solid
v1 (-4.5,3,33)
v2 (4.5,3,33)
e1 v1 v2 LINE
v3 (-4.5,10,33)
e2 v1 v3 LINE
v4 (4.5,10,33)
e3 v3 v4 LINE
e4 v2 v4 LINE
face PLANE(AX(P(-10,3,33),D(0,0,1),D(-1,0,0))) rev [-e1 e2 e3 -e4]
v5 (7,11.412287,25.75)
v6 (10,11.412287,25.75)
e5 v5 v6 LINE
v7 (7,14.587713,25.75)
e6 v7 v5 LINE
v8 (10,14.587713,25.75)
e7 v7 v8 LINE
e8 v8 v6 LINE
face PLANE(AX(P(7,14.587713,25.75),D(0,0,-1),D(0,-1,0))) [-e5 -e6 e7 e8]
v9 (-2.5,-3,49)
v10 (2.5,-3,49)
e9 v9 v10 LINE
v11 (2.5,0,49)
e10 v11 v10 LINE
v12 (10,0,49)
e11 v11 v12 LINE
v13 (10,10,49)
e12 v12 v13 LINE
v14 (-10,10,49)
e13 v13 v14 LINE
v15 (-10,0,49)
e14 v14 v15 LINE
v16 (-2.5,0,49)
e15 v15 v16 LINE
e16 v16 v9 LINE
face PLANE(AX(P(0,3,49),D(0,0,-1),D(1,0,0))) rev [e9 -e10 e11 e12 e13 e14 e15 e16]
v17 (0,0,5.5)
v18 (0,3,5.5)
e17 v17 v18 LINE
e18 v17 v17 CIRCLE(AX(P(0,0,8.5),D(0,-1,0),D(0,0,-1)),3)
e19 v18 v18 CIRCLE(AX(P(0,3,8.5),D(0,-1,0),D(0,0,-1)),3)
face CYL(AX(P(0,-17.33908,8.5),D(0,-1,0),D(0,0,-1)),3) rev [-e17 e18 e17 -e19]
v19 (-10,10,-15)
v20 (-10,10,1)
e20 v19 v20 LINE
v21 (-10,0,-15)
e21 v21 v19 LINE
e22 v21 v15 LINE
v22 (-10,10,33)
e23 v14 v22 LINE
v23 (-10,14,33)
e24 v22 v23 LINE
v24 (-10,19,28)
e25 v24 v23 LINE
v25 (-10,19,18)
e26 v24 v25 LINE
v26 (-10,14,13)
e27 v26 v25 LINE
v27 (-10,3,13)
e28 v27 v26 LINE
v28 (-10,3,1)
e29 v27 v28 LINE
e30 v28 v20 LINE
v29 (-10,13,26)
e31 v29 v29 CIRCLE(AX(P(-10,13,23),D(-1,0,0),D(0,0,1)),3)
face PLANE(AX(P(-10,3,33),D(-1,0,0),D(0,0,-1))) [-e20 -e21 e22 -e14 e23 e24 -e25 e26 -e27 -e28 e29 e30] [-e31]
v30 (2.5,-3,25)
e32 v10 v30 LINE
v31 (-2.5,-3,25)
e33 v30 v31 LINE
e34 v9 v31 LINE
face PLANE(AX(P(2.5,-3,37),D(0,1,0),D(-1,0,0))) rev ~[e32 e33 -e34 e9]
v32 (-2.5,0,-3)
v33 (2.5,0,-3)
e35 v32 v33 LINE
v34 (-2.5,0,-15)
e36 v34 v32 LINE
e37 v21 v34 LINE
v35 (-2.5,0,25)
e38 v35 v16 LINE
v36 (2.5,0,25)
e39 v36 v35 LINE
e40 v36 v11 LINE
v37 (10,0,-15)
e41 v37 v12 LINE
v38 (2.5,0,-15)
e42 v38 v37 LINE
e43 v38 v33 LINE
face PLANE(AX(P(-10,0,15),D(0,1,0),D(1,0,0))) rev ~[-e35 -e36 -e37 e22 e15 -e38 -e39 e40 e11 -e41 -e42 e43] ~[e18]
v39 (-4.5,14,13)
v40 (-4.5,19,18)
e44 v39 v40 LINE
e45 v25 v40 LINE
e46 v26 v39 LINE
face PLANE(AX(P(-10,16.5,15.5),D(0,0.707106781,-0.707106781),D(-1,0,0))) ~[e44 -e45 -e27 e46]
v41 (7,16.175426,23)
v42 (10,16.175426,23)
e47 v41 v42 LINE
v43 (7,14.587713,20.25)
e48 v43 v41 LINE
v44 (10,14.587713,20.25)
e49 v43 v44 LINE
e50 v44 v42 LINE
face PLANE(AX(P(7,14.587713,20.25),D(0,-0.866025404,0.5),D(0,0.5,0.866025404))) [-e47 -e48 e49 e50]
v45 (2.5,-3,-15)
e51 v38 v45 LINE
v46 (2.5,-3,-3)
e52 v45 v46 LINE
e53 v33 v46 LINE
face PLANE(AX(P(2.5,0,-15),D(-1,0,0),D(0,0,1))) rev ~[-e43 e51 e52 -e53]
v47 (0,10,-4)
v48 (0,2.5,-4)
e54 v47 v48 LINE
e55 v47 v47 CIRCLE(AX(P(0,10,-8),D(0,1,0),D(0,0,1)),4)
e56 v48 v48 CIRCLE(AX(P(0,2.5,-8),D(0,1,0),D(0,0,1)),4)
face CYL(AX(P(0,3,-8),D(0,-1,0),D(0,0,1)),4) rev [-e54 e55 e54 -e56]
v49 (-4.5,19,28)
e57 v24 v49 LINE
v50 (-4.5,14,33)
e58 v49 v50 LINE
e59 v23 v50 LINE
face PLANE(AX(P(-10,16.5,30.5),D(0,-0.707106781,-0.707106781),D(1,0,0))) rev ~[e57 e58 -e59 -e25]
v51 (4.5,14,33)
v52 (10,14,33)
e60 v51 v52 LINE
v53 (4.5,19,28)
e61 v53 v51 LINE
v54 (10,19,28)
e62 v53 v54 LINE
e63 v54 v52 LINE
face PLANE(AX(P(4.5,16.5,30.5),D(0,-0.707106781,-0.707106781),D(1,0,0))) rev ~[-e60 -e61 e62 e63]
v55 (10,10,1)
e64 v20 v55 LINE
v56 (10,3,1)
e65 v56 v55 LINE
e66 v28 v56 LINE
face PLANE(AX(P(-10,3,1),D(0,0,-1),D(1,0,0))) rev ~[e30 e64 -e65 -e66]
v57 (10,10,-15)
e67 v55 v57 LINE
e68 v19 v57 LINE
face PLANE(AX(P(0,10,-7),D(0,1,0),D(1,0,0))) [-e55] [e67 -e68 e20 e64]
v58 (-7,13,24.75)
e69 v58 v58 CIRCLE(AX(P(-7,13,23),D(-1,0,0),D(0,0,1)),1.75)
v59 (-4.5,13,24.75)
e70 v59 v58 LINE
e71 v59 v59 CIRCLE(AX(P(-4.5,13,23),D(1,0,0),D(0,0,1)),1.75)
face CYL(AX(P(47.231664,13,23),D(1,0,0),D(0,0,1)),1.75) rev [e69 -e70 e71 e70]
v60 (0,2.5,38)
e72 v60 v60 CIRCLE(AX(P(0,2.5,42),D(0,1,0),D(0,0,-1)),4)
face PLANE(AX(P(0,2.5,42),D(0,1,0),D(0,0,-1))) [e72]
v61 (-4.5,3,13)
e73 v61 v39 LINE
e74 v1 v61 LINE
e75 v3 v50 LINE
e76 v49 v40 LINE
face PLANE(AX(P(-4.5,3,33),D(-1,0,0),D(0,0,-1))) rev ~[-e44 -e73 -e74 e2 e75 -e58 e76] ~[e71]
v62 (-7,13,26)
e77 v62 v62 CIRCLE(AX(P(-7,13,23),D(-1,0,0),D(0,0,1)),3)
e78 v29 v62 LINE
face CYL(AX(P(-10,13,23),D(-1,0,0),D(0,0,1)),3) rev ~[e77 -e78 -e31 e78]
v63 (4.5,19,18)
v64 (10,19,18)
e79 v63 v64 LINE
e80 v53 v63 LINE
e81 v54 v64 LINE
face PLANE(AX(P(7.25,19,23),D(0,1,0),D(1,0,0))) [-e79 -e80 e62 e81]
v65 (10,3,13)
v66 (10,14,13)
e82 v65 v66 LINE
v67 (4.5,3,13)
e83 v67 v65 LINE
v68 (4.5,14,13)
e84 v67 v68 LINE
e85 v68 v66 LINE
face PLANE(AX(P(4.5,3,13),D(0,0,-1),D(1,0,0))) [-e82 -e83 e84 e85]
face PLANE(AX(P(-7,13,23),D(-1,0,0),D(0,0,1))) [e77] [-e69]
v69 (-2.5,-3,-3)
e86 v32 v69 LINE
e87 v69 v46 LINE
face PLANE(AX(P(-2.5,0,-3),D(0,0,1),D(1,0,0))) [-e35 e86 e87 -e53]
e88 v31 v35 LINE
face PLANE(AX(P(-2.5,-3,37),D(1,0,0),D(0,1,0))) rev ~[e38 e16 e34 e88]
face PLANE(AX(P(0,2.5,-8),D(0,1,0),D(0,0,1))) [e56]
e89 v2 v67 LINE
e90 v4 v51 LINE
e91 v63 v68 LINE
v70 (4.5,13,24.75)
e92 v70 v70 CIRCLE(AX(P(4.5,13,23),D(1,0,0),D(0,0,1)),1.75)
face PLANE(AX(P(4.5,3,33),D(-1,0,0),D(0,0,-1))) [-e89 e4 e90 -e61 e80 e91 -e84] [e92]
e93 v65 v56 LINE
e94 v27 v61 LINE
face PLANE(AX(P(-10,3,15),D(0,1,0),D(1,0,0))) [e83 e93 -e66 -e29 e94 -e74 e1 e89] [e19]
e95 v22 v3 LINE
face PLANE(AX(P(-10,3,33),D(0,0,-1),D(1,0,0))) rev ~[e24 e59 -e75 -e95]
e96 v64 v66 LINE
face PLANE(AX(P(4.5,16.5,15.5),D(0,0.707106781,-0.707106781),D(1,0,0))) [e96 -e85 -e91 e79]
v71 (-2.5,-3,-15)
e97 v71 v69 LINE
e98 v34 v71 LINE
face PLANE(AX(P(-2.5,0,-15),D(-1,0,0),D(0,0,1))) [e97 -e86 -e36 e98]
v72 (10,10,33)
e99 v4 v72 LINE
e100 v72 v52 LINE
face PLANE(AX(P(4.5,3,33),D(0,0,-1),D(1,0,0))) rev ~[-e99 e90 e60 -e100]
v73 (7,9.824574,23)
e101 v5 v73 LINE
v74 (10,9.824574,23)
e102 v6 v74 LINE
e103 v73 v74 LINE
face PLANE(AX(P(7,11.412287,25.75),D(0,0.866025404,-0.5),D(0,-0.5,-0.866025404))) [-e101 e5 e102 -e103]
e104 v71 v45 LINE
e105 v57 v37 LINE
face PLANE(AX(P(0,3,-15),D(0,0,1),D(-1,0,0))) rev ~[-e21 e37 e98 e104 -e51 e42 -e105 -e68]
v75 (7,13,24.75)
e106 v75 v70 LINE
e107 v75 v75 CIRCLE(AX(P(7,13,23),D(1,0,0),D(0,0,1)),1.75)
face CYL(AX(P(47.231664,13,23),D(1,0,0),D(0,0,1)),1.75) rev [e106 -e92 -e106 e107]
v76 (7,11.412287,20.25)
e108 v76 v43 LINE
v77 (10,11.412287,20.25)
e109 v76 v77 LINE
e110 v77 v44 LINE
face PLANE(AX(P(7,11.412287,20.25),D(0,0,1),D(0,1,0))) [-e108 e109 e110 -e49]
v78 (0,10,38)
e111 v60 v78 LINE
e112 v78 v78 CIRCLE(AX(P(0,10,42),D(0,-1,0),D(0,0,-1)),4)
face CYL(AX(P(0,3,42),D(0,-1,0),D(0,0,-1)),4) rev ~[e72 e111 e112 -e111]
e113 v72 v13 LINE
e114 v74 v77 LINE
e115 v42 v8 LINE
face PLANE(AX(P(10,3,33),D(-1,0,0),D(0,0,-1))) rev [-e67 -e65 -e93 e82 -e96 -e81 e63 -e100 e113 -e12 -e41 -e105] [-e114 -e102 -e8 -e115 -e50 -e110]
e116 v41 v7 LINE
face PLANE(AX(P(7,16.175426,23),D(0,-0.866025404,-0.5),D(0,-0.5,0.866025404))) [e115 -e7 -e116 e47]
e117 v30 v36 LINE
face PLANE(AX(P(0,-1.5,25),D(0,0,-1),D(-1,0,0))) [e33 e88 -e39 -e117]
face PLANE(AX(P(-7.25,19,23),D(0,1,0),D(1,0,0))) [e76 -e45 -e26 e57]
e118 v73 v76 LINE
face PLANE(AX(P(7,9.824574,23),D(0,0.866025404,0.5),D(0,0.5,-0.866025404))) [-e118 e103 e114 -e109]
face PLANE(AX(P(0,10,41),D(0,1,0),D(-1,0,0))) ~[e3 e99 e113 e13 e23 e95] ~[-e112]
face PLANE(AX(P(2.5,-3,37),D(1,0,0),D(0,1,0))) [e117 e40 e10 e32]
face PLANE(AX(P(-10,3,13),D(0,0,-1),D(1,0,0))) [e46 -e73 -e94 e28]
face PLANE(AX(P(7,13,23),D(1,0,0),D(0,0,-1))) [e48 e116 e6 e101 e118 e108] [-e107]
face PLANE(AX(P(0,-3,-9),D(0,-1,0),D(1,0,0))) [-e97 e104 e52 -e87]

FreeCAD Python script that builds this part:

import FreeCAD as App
import Part
import Sketcher

V = App.Vector
Q = App.Units.Quantity


def edges_at(feature, points):
    """Names of the edges that pass closest to the given points."""
    edges = feature.Shape.Edges
    near = lambda p: min(range(len(edges)), key=lambda i: edges[i].distToShape(Part.Vertex(*p))[0])
    return sorted({f"Edge{near(p) + 1}" for p in points})

doc = App.newDocument("Part")
body = doc.addObject("PartDesign::Body", "Body")

# Sketch on XZ plane
sketch1 = doc.addObject("Sketcher::SketchObject", "Sketch")
body.addObject(sketch1)
sketch1.AttachmentSupport = (doc.XZ_Plane, [""])
sketch1.MapMode = "FlatFace"
sketch1.addGeometry([
    Part.LineSegment(V(-10, -15, 0), V(-10, 15, 0)),
    Part.LineSegment(V(-10, 15, 0), V(10, 15, 0)),
    Part.LineSegment(V(10, 15, 0), V(10, -15, 0)),
    Part.LineSegment(V(10, -15, 0), V(-10, -15, 0)),
], False)
sketch1.addConstraint([
    Sketcher.Constraint("Coincident", 0, 2, 1, 1),
    Sketcher.Constraint("Coincident", 1, 2, 2, 1),
    Sketcher.Constraint("Coincident", 2, 2, 3, 1),
    Sketcher.Constraint("Coincident", 3, 2, 0, 1),
    Sketcher.Constraint("Vertical", 0),
    Sketcher.Constraint("Horizontal", 1),
    Sketcher.Constraint("Vertical", 2),
    Sketcher.Constraint("Horizontal", 3),
    Sketcher.Constraint("Symmetric", 0, 2, 2, 2, -1, 1),
    Sketcher.Constraint("DistanceX", 1, 1, 1, 2, Q("20 mm")),
    Sketcher.Constraint("DistanceY", 0, 1, 0, 2, Q("30 mm")),
])
pad1 = doc.addObject("PartDesign::Pad", "Pad")
body.addObject(pad1)
pad1.Profile = sketch1
pad1.Length = 3
pad1.Reversed = True

# Sketch on XZ plane
sketch2 = doc.addObject("Sketcher::SketchObject", "Sketch001")
body.addObject(sketch2)
sketch2.AttachmentSupport = (doc.XZ_Plane, [""])
sketch2.MapMode = "FlatFace"
sketch2.addGeometry([
    Part.LineSegment(V(-2, -3, 0), V(-2, -15, 0)),
    Part.LineSegment(V(-2, -15, 0), V(2, -15, 0)),
    Part.LineSegment(V(2, -15, 0), V(2, -3, 0)),
    Part.LineSegment(V(2, -3, 0), V(-2, -3, 0)),
], False)
sketch2.addConstraint([
    Sketcher.Constraint("Coincident", 0, 2, 1, 1),
    Sketcher.Constraint("Coincident", 1, 2, 2, 1),
    Sketcher.Constraint("Coincident", 2, 2, 3, 1),
    Sketcher.Constraint("Coincident", 3, 2, 0, 1),
    Sketcher.Constraint("Vertical", 0),
    Sketcher.Constraint("Horizontal", 1),
    Sketcher.Constraint("Vertical", 2),
    Sketcher.Constraint("Horizontal", 3),
    Sketcher.Constraint("DistanceX", 1, 1, 1, 2, Q("5 mm")),
    Sketcher.Constraint("DistanceY", 0, 2, 0, 1, Q("12 mm")),
    Sketcher.Constraint("DistanceY", 0, 2, -1, 1, Q("15 mm")),
    Sketcher.Constraint("DistanceX", 0, 2, -1, 1, Q("2.5 mm")),
])
pad2 = doc.addObject("PartDesign::Pad", "Pad001")
body.addObject(pad2)
pad2.Profile = sketch2
pad2.Length = 3

# Sketch on XZ plane
sketch3 = doc.addObject("Sketcher::SketchObject", "Sketch002")
body.addObject(sketch3)
sketch3.AttachmentSupport = (doc.XZ_Plane, [""])
sketch3.MapMode = "FlatFace"
sketch3.AttachmentOffset = App.Placement(V(0, 0, -3), App.Rotation())
sketch3.addGeometry([
    Part.Circle(V(0, -8, 0), V(0, 0, 1), 7),
    Part.Circle(V(0, -8, 0), V(0, 0, 1), 4),
], False)
sketch3.addConstraint([
    Sketcher.Constraint("Coincident", 1, 3, 0, 3),
    Sketcher.Constraint("PointOnObject", 0, 3, -2),
    Sketcher.Constraint("Diameter", 0, Q("14 mm")),
    Sketcher.Constraint("Diameter", 1, Q("8 mm")),
    Sketcher.Constraint("DistanceY", 0, 3, -1, 1, Q("8 mm")),
])
pad3 = doc.addObject("PartDesign::Pad", "Pad002")
body.addObject(pad3)
pad3.Profile = sketch3
pad3.Length = 7
pad3.Reversed = True

# Sketch on XZ plane
sketch4 = doc.addObject("Sketcher::SketchObject", "Sketch003")
body.addObject(sketch4)
sketch4.AttachmentSupport = (doc.XZ_Plane, [""])
sketch4.MapMode = "FlatFace"
sketch4.AttachmentOffset = App.Placement(V(0, 0, -3), App.Rotation())
sketch4.addGeometry(Part.Circle(V(0, -8, 0), V(0, 0, 1), 4), False)
sketch4.addConstraint([
    Sketcher.Constraint("PointOnObject", 0, 3, -2),
    Sketcher.Constraint("Diameter", 0, Q("8 mm")),
    Sketcher.Constraint("DistanceY", 0, 3, -1, 1, Q("8 mm")),
])
pad4 = doc.addObject("PartDesign::Pad", "Pad003")
body.addObject(pad4)
pad4.Profile = sketch4
pad4.Length = 1
pad4.Reversed = True

# Sketch on XZ plane
sketch5 = doc.addObject("Sketcher::SketchObject", "Sketch004")
body.addObject(sketch5)
sketch5.AttachmentSupport = (doc.XZ_Plane, [""])
sketch5.MapMode = "FlatFace"
sketch5.AttachmentOffset = App.Placement(V(0, 0, -3), App.Rotation())
sketch5.addGeometry(Part.Circle(V(0, 8.5, 0), V(0, 0, 1), 3), False)
sketch5.addConstraint([
    Sketcher.Constraint("PointOnObject", 0, 3, -2),
    Sketcher.Constraint("Diameter", 0, Q("6 mm")),
    Sketcher.Constraint("DistanceY", -1, 1, 0, 3, Q("8.5 mm")),
])
pocket1 = doc.addObject("PartDesign::Pocket", "Pocket")
body.addObject(pocket1)
pocket1.Profile = sketch5
pocket1.Type = "ThroughAll"
pocket1.Midplane = True

# Sketch on XZ plane
sketch6 = doc.addObject("Sketcher::SketchObject", "Sketch005")
body.addObject(sketch6)
sketch6.AttachmentSupport = (doc.XZ_Plane, [""])
sketch6.MapMode = "FlatFace"
sketch6.AttachmentOffset = App.Placement(V(0, 0, -3), App.Rotation())
sketch6.addGeometry([
    Part.LineSegment(V(10, -15, 0), V(-10, -15, 0)),  # 0
    Part.LineSegment(V(-10, -15, 0), V(-10, 1, 0)),  # 1
    Part.LineSegment(V(-10, 1, 0), V(10, 1, 0)),  # 2
    Part.LineSegment(V(10, 1, 0), V(10, -15, 0)),  # 3
    Part.Circle(V(0, -8, 0), V(0, 0, 1), 4),  # 4
], False)
sketch6.addConstraint([
    Sketcher.Constraint("Coincident", 0, 2, 1, 1),
    Sketcher.Constraint("Coincident", 1, 2, 2, 1),
    Sketcher.Constraint("Coincident", 2, 2, 3, 1),
    Sketcher.Constraint("Coincident", 3, 2, 0, 1),
    Sketcher.Constraint("Horizontal", 0),
    Sketcher.Constraint("Vertical", 1),
    Sketcher.Constraint("Horizontal", 2),
    Sketcher.Constraint("Vertical", 3),
    Sketcher.Constraint("PointOnObject", 4, 3, -2),
    Sketcher.Constraint("Diameter", 4, Q("8 mm")),
    Sketcher.Constraint("DistanceX", 0, 2, 0, 1, Q("20 mm")),
    Sketcher.Constraint("DistanceY", 1, 1, 1, 2, Q("16 mm")),
    Sketcher.Constraint("DistanceY", 4, 3, -1, 1, Q("8 mm")),
    Sketcher.Constraint("DistanceX", 0, 2, -1, 1, Q("10 mm")),
    Sketcher.Constraint("DistanceY", 0, 2, -1, 1, Q("15 mm")),
])
pad5 = doc.addObject("PartDesign::Pad", "Pad004")
body.addObject(pad5)
pad5.Profile = sketch6
pad5.Length = 7
pad5.Reversed = True

# Sketch on XY plane
sketch7 = doc.addObject("Sketcher::SketchObject", "Sketch006")
body.addObject(sketch7)
sketch7.AttachmentSupport = (doc.XY_Plane, [""])
sketch7.MapMode = "FlatFace"
sketch7.AttachmentOffset = App.Placement(V(0, 0, 15), App.Rotation())
sketch7.addGeometry([
    Part.LineSegment(V(-10, 3, 0), V(-10, 0, 0)),
    Part.LineSegment(V(-10, 0, 0), V(10, 0, 0)),
    Part.LineSegment(V(10, 0, 0), V(10, 3, 0)),
    Part.LineSegment(V(10, 3, 0), V(-10, 3, 0)),
], False)
sketch7.addConstraint([
    Sketcher.Constraint("Coincident", 0, 2, 1, 1),
    Sketcher.Constraint("Coincident", 1, 2, 2, 1),
    Sketcher.Constraint("Coincident", 2, 2, 3, 1),
    Sketcher.Constraint("Coincident", 3, 2, 0, 1),
    Sketcher.Constraint("Vertical", 0),
    Sketcher.Constraint("Horizontal", 1),
    Sketcher.Constraint("Vertical", 2),
    Sketcher.Constraint("Horizontal", 3),
    Sketcher.Constraint("Symmetric", 0, 2, 1, 2, -1, 1),
    Sketcher.Constraint("DistanceX", 1, 1, 1, 2, Q("20 mm")),
    Sketcher.Constraint("DistanceY", 0, 2, 0, 1, Q("3 mm")),
])
pad6 = doc.addObject("PartDesign::Pad", "Pad005")
body.addObject(pad6)
pad6.Profile = sketch7
pad6.Length = 19
doc.recompute()

datumplane = doc.addObject("PartDesign::Plane", "DatumPlane")
body.addObject(datumplane)
datumplane.AttachmentSupport = (doc.XY_Plane, [""])
datumplane.MapMode = "FlatFace"
datumplane.AttachmentOffset = App.Placement(V(0, 0, 17), App.Rotation())
mirrored = doc.addObject("PartDesign::Mirrored", "Mirrored")
body.addObject(mirrored)
mirrored.Originals = [pad1, pad2, pad3, pad4, pad5]
mirrored.MirrorPlane = (datumplane, [""])
body.Tip = mirrored

# Sketch on XY plane
sketch8 = doc.addObject("Sketcher::SketchObject", "Sketch007")
body.addObject(sketch8)
sketch8.AttachmentSupport = (doc.XY_Plane, [""])
sketch8.MapMode = "FlatFace"
sketch8.AttachmentOffset = App.Placement(V(0, 0, 37), App.Rotation())
sketch8.addGeometry([
    Part.LineSegment(V(2.5, 0, 0), V(2.5, -3, 0)),
    Part.LineSegment(V(2.5, -3, 0), V(-2.5, -3, 0)),
    Part.LineSegment(V(-2.5, -3, 0), V(-2.5, 0, 0)),
    Part.LineSegment(V(-2.5, 0, 0), V(2.5, 0, 0)),
], False)
sketch8.addConstraint([
    Sketcher.Constraint("Coincident", 0, 2, 1, 1),
    Sketcher.Constraint("Coincident", 1, 2, 2, 1),
    Sketcher.Constraint("Coincident", 2, 2, 3, 1),
    Sketcher.Constraint("Coincident", 3, 2, 0, 1),
    Sketcher.Constraint("Vertical", 0),
    Sketcher.Constraint("Horizontal", 1),
    Sketcher.Constraint("Vertical", 2),
    Sketcher.Constraint("Horizontal", 3),
    Sketcher.Constraint("Symmetric", 2, 2, 3, 2, -1, 1),
    Sketcher.Constraint("DistanceX", 1, 2, 1, 1, Q("5 mm")),
    Sketcher.Constraint("DistanceY", 0, 2, 0, 1, Q("3 mm")),
])
pad7 = doc.addObject("PartDesign::Pad", "Pad006")
body.addObject(pad7)
pad7.Profile = sketch8
pad7.Length = 12
pad7.Reversed = True

# Sketch on XZ plane
sketch9 = doc.addObject("Sketcher::SketchObject", "Sketch008")
body.addObject(sketch9)
sketch9.AttachmentSupport = (doc.XZ_Plane, [""])
sketch9.MapMode = "FlatFace"
sketch9.AttachmentOffset = App.Placement(V(0, 0, -3), App.Rotation())
sketch9.addGeometry([
    Part.LineSegment(V(-10, 13, 0), V(-10, 33, 0)),  # 0
    Part.LineSegment(V(-10, 33, 0), V(-4, 33, 0)),  # 1
    Part.LineSegment(V(-4, 33, 0), V(-4, 13, 0)),  # 2
    Part.LineSegment(V(-4, 13, 0), V(-10, 13, 0)),  # 3
    Part.LineSegment(V(4, 13, 0), V(4, 33, 0)),  # 4
    Part.LineSegment(V(4, 33, 0), V(10, 33, 0)),  # 5
    Part.LineSegment(V(10, 33, 0), V(10, 13, 0)),  # 6
    Part.LineSegment(V(10, 13, 0), V(4, 13, 0)),  # 7
], False)
sketch9.addConstraint([
    Sketcher.Constraint("Coincident", 0, 2, 1, 1),
    Sketcher.Constraint("Coincident", 1, 2, 2, 1),
    Sketcher.Constraint("Coincident", 2, 2, 3, 1),
    Sketcher.Constraint("Coincident", 3, 2, 0, 1),
    Sketcher.Constraint("Coincident", 4, 2, 5, 1),
    Sketcher.Constraint("Coincident", 5, 2, 6, 1),
    Sketcher.Constraint("Coincident", 6, 2, 7, 1),
    Sketcher.Constraint("Coincident", 7, 2, 4, 1),
    Sketcher.Constraint("Vertical", 0),
    Sketcher.Constraint("Horizontal", 1),
    Sketcher.Constraint("Vertical", 2),
    Sketcher.Constraint("Horizontal", 3),
    Sketcher.Constraint("Vertical", 4),
    Sketcher.Constraint("Horizontal", 5),
    Sketcher.Constraint("Vertical", 6),
    Sketcher.Constraint("Horizontal", 7),
    Sketcher.Constraint("Symmetric", 1, 2, 4, 2, -2),
    Sketcher.Constraint("Symmetric", 3, 2, 6, 2, -2),
    Sketcher.Constraint("DistanceY", 0, 1, 0, 2, Q("20 mm")),
    Sketcher.Constraint("DistanceX", 1, 1, 1, 2, Q("5.5 mm")),
    Sketcher.Constraint("DistanceX", 0, 2, -1, 1, Q("10 mm")),
    Sketcher.Constraint("DistanceY", -1, 1, 0, 2, Q("33 mm")),
])
pad8 = doc.addObject("PartDesign::Pad", "Pad007")
body.addObject(pad8)
pad8.Profile = sketch9
pad8.Length = 16
pad8.Reversed = True

# Sketch on YZ plane
sketch10 = doc.addObject("Sketcher::SketchObject", "Sketch009")
body.addObject(sketch10)
sketch10.AttachmentSupport = (doc.YZ_Plane, [""])
sketch10.MapMode = "FlatFace"
sketch10.AttachmentOffset = App.Placement(V(0, 0, -10), App.Rotation())
sketch10.addGeometry(Part.Circle(V(13, 23, 0), V(0, 0, 1), 1.8), False)
sketch10.addConstraint([
    Sketcher.Constraint("Diameter", 0, Q("3.5 mm")),
    Sketcher.Constraint("DistanceX", -1, 1, 0, 3, Q("13 mm")),
    Sketcher.Constraint("DistanceY", -1, 1, 0, 3, Q("23 mm")),
])
pocket2 = doc.addObject("PartDesign::Pocket", "Pocket001")
body.addObject(pocket2)
pocket2.Profile = sketch10
pocket2.Type = "ThroughAll"
pocket2.Midplane = True

# Sketch on YZ plane
sketch11 = doc.addObject("Sketcher::SketchObject", "Sketch010")
body.addObject(sketch11)
sketch11.AttachmentSupport = (doc.YZ_Plane, [""])
sketch11.MapMode = "FlatFace"
sketch11.AttachmentOffset = App.Placement(V(0, 0, -10), App.Rotation())
sketch11.addGeometry([
    Part.Circle(V(13, 23, 0), V(0, 0, 1), 3),
    Part.Circle(V(13, 23, 0), V(0, 0, 1), 1.8),
], False)
sketch11.addConstraint([
    Sketcher.Constraint("Coincident", 1, 3, 0, 3),
    Sketcher.Constraint("Diameter", 0, Q("6 mm")),
    Sketcher.Constraint("Diameter", 1, Q("3.5 mm")),
    Sketcher.Constraint("DistanceX", -1, 1, 0, 3, Q("13 mm")),
    Sketcher.Constraint("DistanceY", -1, 1, 0, 3, Q("23 mm")),
])
pocket3 = doc.addObject("PartDesign::Pocket", "Pocket002")
body.addObject(pocket3)
pocket3.Profile = sketch11
pocket3.Length = 3
pocket3.Reversed = True

# Sketch on YZ plane
sketch12 = doc.addObject("Sketcher::SketchObject", "Sketch011")
body.addObject(sketch12)
sketch12.AttachmentSupport = (doc.YZ_Plane, [""])
sketch12.MapMode = "FlatFace"
sketch12.AttachmentOffset = App.Placement(V(0, 0, 7), App.Rotation())
sketch12.addGeometry([
    Part.LineSegment(V(16.2, 23, 0), V(14.6, 25.8, 0)),  # 0
    Part.LineSegment(V(14.6, 25.8, 0), V(11.4, 25.8, 0)),  # 1
    Part.LineSegment(V(11.4, 25.8, 0), V(9.8, 23, 0)),  # 2
    Part.LineSegment(V(9.8, 23, 0), V(11.4, 20.2, 0)),  # 3
    Part.LineSegment(V(11.4, 20.2, 0), V(14.6, 20.2, 0)),  # 4
    Part.LineSegment(V(14.6, 20.2, 0), V(16.2, 23, 0)),  # 5
    Part.Circle(V(13, 23, 0), V(0, 0, 1), 1.8),  # 6
], False)
sketch12.addConstraint([
    Sketcher.Constraint("Coincident", 0, 2, 1, 1),
    Sketcher.Constraint("Coincident", 1, 2, 2, 1),
    Sketcher.Constraint("Coincident", 2, 2, 3, 1),
    Sketcher.Constraint("Coincident", 3, 2, 4, 1),
    Sketcher.Constraint("Coincident", 4, 2, 5, 1),
    Sketcher.Constraint("Coincident", 5, 2, 0, 1),
    Sketcher.Constraint("Horizontal", 1),
    Sketcher.Constraint("Horizontal", 4),
    Sketcher.Constraint("Parallel", 0, 3),
    Sketcher.Constraint("Parallel", 2, 5),
    Sketcher.Constraint("Horizontal", 6, 3, 2, 2),
    Sketcher.Constraint("Horizontal", 2, 2, 5, 2),
    Sketcher.Constraint("Vertical", 1, 2, 3, 2),
    Sketcher.Constraint("Vertical", 0, 2, 4, 2),
    Sketcher.Constraint("Diameter", 6, Q("3.5 mm")),
    Sketcher.Constraint("Angle", 0, Q("120 deg")),
    Sketcher.Constraint("DistanceX", -1, 1, 6, 3, Q("13 mm")),
    Sketcher.Constraint("DistanceY", -1, 1, 6, 3, Q("23 mm")),
    Sketcher.Constraint("DistanceY", 3, 2, 1, 2, Q("5.5 mm")),
    Sketcher.Constraint("DistanceX", 1, 2, 1, 1, Q("3.175426 mm")),
    Sketcher.Constraint("DistanceX", -1, 1, 0, 2, Q("14.587713 mm")),
])
pocket4 = doc.addObject("PartDesign::Pocket", "Pocket003")
body.addObject(pocket4)
pocket4.Profile = sketch12
pocket4.Length = 3
pocket4.Reversed = True
doc.recompute()

chamfer = doc.addObject("PartDesign::Chamfer", "Chamfer")
body.addObject(chamfer)
chamfer.Base = (pocket4, edges_at(pocket4, [
    (-7.25, 19, 13),
    (-7.25, 19, 33),
    (7.25, 19, 13),
    (7.25, 19, 33),
]))
chamfer.Size = 5

# Sketch on XZ plane
sketch13 = doc.addObject("Sketcher::SketchObject", "Sketch012")
body.addObject(sketch13)
sketch13.AttachmentSupport = (doc.XZ_Plane, [""])
sketch13.MapMode = "FlatFace"
sketch13.AttachmentOffset = App.Placement(V(0, 0, -2.5), App.Rotation())
sketch13.addGeometry([
    Part.Circle(V(0, 42, 0), V(0, 0, 1), 4),
    Part.Circle(V(0, -8, 0), V(0, 0, 1), 4),
], False)
sketch13.addConstraint([
    Sketcher.Constraint("Equal", 0, 1),
    Sketcher.Constraint("PointOnObject", 0, 3, -2),
    Sketcher.Constraint("PointOnObject", 1, 3, -2),
    Sketcher.Constraint("Diameter", 0, Q("8 mm")),
    Sketcher.Constraint("DistanceY", -1, 1, 0, 3, Q("42 mm")),
    Sketcher.Constraint("DistanceY", 1, 3, -1, 1, Q("8 mm")),
])
pocket5 = doc.addObject("PartDesign::Pocket", "Pocket004")
body.addObject(pocket5)
pocket5.Profile = sketch13
pocket5.Length = 1.5

doc.recompute()
